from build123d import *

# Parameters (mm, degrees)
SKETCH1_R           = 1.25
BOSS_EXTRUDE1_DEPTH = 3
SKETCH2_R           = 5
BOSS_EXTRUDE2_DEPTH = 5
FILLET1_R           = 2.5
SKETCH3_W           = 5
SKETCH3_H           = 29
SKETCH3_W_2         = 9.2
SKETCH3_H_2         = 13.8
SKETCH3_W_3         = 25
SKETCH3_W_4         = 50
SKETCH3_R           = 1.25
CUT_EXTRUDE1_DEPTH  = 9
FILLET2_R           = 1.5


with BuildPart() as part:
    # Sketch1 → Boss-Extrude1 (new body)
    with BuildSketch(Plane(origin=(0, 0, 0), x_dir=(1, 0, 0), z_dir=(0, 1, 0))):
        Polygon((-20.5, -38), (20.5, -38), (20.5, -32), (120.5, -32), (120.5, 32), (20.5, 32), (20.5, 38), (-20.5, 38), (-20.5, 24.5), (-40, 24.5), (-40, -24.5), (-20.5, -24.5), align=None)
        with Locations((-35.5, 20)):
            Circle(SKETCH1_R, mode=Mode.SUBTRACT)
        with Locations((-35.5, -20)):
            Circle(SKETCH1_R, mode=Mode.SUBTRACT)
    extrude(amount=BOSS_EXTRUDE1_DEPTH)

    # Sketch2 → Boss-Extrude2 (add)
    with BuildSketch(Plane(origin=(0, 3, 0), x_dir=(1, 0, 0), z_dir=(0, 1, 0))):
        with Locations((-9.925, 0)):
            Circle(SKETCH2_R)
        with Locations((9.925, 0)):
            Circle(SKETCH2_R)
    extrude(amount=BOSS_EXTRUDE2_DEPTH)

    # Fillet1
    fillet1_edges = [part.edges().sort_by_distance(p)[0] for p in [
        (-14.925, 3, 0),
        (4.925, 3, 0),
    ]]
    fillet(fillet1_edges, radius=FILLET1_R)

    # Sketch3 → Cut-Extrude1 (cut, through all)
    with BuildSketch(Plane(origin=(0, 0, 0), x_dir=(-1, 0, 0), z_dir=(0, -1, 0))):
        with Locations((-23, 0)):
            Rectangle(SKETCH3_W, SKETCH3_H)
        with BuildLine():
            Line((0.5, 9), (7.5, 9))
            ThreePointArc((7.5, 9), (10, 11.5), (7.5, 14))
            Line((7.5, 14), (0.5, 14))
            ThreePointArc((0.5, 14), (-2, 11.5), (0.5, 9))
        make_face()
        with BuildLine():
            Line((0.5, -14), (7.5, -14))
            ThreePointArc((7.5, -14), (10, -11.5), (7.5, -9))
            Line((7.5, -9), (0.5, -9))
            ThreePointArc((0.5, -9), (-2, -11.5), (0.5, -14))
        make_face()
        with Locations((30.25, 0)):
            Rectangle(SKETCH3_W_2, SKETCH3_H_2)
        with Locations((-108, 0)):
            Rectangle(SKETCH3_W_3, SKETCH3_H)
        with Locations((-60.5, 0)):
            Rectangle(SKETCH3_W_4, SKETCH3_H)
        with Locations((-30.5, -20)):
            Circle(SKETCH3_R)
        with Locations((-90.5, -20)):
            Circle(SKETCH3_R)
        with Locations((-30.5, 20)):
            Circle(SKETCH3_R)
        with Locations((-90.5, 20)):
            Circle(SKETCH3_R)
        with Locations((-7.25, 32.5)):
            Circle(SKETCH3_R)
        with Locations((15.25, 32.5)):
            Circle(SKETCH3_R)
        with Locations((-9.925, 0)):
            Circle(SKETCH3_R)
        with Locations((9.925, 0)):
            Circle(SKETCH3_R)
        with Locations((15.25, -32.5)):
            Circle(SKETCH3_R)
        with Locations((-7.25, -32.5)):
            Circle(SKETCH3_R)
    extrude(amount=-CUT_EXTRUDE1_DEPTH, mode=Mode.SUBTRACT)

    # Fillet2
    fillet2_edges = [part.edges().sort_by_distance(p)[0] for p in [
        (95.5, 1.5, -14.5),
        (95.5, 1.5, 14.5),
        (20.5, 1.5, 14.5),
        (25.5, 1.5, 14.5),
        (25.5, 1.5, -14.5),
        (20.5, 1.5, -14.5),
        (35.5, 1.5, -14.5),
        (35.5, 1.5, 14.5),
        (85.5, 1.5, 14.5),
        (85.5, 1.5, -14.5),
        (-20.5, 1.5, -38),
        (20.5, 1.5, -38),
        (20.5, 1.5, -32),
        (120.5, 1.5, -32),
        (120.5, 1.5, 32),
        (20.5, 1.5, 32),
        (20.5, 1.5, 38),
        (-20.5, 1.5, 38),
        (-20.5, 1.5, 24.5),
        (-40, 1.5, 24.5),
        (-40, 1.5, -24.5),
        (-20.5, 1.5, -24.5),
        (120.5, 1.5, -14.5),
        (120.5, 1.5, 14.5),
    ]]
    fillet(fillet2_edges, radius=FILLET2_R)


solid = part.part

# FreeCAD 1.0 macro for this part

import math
import FreeCAD as App
import Part
import Sketcher
Q = App.Units.Quantity


def edges_at(feature, points):
    """Names of the edges that pass closest to the given points."""
    edges = feature.Shape.Edges
    near = lambda p: min(range(len(edges)), key=lambda i: edges[i].distToShape(Part.Vertex(*p))[0])
    return sorted({f"Edge{near(p) + 1}" for p in points})

doc = App.newDocument("Part")
body = doc.addObject("PartDesign::Body", "Body")

sketch1 = doc.addObject("Sketcher::SketchObject", "Sketch")
body.addObject(sketch1)
sketch1.AttachmentSupport = (doc.XZ_Plane, [""])
sketch1.MapMode = "FlatFace"
sketch1.addGeometry(Part.LineSegment(App.Vector(-20.5, 38, 0), App.Vector(20.5, 38, 0)), False)
sketch1.addGeometry(Part.LineSegment(App.Vector(20.5, 38, 0), App.Vector(20.5, 32, 0)), False)
sketch1.addGeometry(Part.LineSegment(App.Vector(20.5, 32, 0), App.Vector(120.5, 32, 0)), False)
sketch1.addGeometry(Part.LineSegment(App.Vector(120.5, 32, 0), App.Vector(120.5, -32, 0)), False)
sketch1.addGeometry(Part.LineSegment(App.Vector(120.5, -32, 0), App.Vector(20.5, -32, 0)), False)
sketch1.addGeometry(Part.LineSegment(App.Vector(20.5, -32, 0), App.Vector(20.5, -38, 0)), False)
sketch1.addGeometry(Part.LineSegment(App.Vector(20.5, -38, 0), App.Vector(-20.5, -38, 0)), False)
sketch1.addGeometry(Part.LineSegment(App.Vector(-20.5, -38, 0), App.Vector(-20.5, -24.5, 0)), False)
sketch1.addGeometry(Part.LineSegment(App.Vector(-20.5, -24.5, 0), App.Vector(-40, -24.5, 0)), False)
sketch1.addGeometry(Part.LineSegment(App.Vector(-40, -24.5, 0), App.Vector(-40, 24.5, 0)), False)
sketch1.addGeometry(Part.LineSegment(App.Vector(-40, 24.5, 0), App.Vector(-20.5, 24.5, 0)), False)
sketch1.addGeometry(Part.LineSegment(App.Vector(-20.5, 24.5, 0), App.Vector(-20.5, 38, 0)), False)
sketch1.addGeometry(Part.Circle(App.Vector(-35.5, 20, 0), App.Vector(0, 0, 1), 1.2), False)
sketch1.addGeometry(Part.Circle(App.Vector(-35.5, -20, 0), App.Vector(0, 0, 1), 1.2), False)
sketch1.addConstraint(Sketcher.Constraint("Coincident", 0, 2, 1, 1))
sketch1.addConstraint(Sketcher.Constraint("Coincident", 1, 2, 2, 1))
sketch1.addConstraint(Sketcher.Constraint("Coincident", 2, 2, 3, 1))
sketch1.addConstraint(Sketcher.Constraint("Coincident", 3, 2, 4, 1))
sketch1.addConstraint(Sketcher.Constraint("Coincident", 4, 2, 5, 1))
sketch1.addConstraint(Sketcher.Constraint("Coincident", 5, 2, 6, 1))
sketch1.addConstraint(Sketcher.Constraint("Coincident", 6, 2, 7, 1))
sketch1.addConstraint(Sketcher.Constraint("Coincident", 7, 2, 8, 1))
sketch1.addConstraint(Sketcher.Constraint("Coincident", 8, 2, 9, 1))
sketch1.addConstraint(Sketcher.Constraint("Coincident", 9, 2, 10, 1))
sketch1.addConstraint(Sketcher.Constraint("Coincident", 10, 2, 11, 1))
sketch1.addConstraint(Sketcher.Constraint("Coincident", 11, 2, 0, 1))
sketch1.addConstraint(Sketcher.Constraint("Horizontal", 0))
sketch1.addConstraint(Sketcher.Constraint("Vertical", 1))
sketch1.addConstraint(Sketcher.Constraint("Horizontal", 2))
sketch1.addConstraint(Sketcher.Constraint("Vertical", 3))
sketch1.addConstraint(Sketcher.Constraint("Horizontal", 4))
sketch1.addConstraint(Sketcher.Constraint("Vertical", 5))
sketch1.addConstraint(Sketcher.Constraint("Horizontal", 6))
sketch1.addConstraint(Sketcher.Constraint("Vertical", 7))
sketch1.addConstraint(Sketcher.Constraint("Horizontal", 8))
sketch1.addConstraint(Sketcher.Constraint("Vertical", 9))
sketch1.addConstraint(Sketcher.Constraint("Horizontal", 10))
sketch1.addConstraint(Sketcher.Constraint("Vertical", 11))
sketch1.addConstraint(Sketcher.Constraint("Equal", 12, 13))
sketch1.addConstraint(Sketcher.Constraint("Symmetric", 0, 2, 6, 2, -1, 1))
sketch1.addConstraint(Sketcher.Constraint("Symmetric", 12, 3, 13, 3, -1))
sketch1.addConstraint(Sketcher.Constraint("Symmetric", 1, 2, 4, 2, -1))
sketch1.addConstraint(Sketcher.Constraint("Symmetric", 7, 2, 10, 2, -1))
sketch1.addConstraint(Sketcher.Constraint("Diameter", 12, Q("2.5 mm")))
sketch1.addConstraint(Sketcher.Constraint("DistanceX", 0, 1, 0, 2, Q("41 mm")))
sketch1.addConstraint(Sketcher.Constraint("DistanceX", 2, 1, 2, 2, Q("100 mm")))
sketch1.addConstraint(Sketcher.Constraint("DistanceY", 1, 2, 1, 1, Q("6 mm")))
sketch1.addConstraint(Sketcher.Constraint("DistanceY", 3, 2, 3, 1, Q("64 mm")))
sketch1.addConstraint(Sketcher.Constraint("DistanceY", 9, 1, 9, 2, Q("49 mm")))
sketch1.addConstraint(Sketcher.Constraint("DistanceX", 8, 2, 8, 1, Q("19.5 mm")))
sketch1.addConstraint(Sketcher.Constraint("DistanceY", -1, 1, 12, 3, Q("20 mm")))
sketch1.addConstraint(Sketcher.Constraint("DistanceX", 12, 3, 0, 2, Q("56 mm")))
pad1 = doc.addObject("PartDesign::Pad", "Pad")
body.addObject(pad1)
pad1.Profile = sketch1
pad1.Length = 3
pad1.Reversed = True

sketch2 = doc.addObject("Sketcher::SketchObject", "Sketch001")
body.addObject(sketch2)
sketch2.AttachmentSupport = (doc.XZ_Plane, [""])
sketch2.MapMode = "FlatFace"
sketch2.AttachmentOffset = App.Placement(App.Vector(0, 0, -3), App.Rotation())
sketch2.addGeometry(Part.Circle(App.Vector(-10, 0, 0), App.Vector(0, 0, 1), 5), False)
sketch2.addGeometry(Part.Circle(App.Vector(10, 0, 0), App.Vector(0, 0, 1), 5), False)
sketch2.addConstraint(Sketcher.Constraint("Equal", 0, 1))
sketch2.addConstraint(Sketcher.Constraint("Symmetric", 0, 3, 1, 3, -1, 1))
sketch2.addConstraint(Sketcher.Constraint("PointOnObject", 0, 3, -1))
sketch2.addConstraint(Sketcher.Constraint("Diameter", 0, Q("10 mm")))
sketch2.addConstraint(Sketcher.Constraint("DistanceX", 0, 3, 1, 3, Q("19.85 mm")))
pad2 = doc.addObject("PartDesign::Pad", "Pad001")
body.addObject(pad2)
pad2.Profile = sketch2
pad2.Length = 5
pad2.Reversed = True
doc.recompute()

fillet = doc.addObject("PartDesign::Fillet", "Fillet")
body.addObject(fillet)
fillet.Base = (pad2, edges_at(pad2, [(-14.925, 3, 0), (4.925, 3, 0)]))
fillet.Radius = 2.5

sketch3 = doc.addObject("Sketcher::SketchObject", "Sketch002")
body.addObject(sketch3)
sketch3.AttachmentSupport = (doc.XZ_Plane, [""])
sketch3.MapMode = "FlatFace"
sketch3.addGeometry(Part.LineSegment(App.Vector(25.5, -14.5, 0), App.Vector(25.5, 14.5, 0)), False)
sketch3.addGeometry(Part.LineSegment(App.Vector(25.5, 14.5, 0), App.Vector(20.5, 14.5, 0)), False)
sketch3.addGeometry(Part.LineSegment(App.Vector(20.5, 14.5, 0), App.Vector(20.5, -14.5, 0)), False)
sketch3.addGeometry(Part.LineSegment(App.Vector(20.5, -14.5, 0), App.Vector(25.5, -14.5, 0)), False)
sketch3.addGeometry(Part.LineSegment(App.Vector(-0.5, -9, 0), App.Vector(-7.5, -9, 0)), False)
sketch3.addGeometry(Part.ArcOfCircle(Part.Circle(App.Vector(-7.5, -11.5, 0), App.Vector(0, 0, 1), 2.5), math.radians(90), math.radians(270)), False)
sketch3.addGeometry(Part.LineSegment(App.Vector(-7.5, -14, 0), App.Vector(-0.5, -14, 0)), False)
sketch3.addGeometry(Part.ArcOfCircle(Part.Circle(App.Vector(-0.5, -11.5, 0), App.Vector(0, 0, 1), 2.5), math.radians(-90), math.radians(90)), False)
sketch3.addGeometry(Part.LineSegment(App.Vector(-0.5, 14, 0), App.Vector(-7.5, 14, 0)), False)
sketch3.addGeometry(Part.ArcOfCircle(Part.Circle(App.Vector(-7.5, 11.5, 0), App.Vector(0, 0, 1), 2.5), math.radians(90), math.radians(270)), False)
sketch3.addGeometry(Part.LineSegment(App.Vector(-7.5, 9, 0), App.Vector(-0.5, 9, 0)), False)
sketch3.addGeometry(Part.ArcOfCircle(Part.Circle(App.Vector(-0.5, 11.5, 0), App.Vector(0, 0, 1), 2.5), math.radians(-90), math.radians(90)), False)
sketch3.addGeometry(Part.LineSegment(App.Vector(-25.6, -6.9, 0), App.Vector(-25.6, 6.9, 0)), False)
sketch3.addGeometry(Part.LineSegment(App.Vector(-25.6, 6.9, 0), App.Vector(-34.9, 6.9, 0)), False)
sketch3.addGeometry(Part.LineSegment(App.Vector(-34.9, 6.9, 0), App.Vector(-34.9, -6.9, 0)), False)
sketch3.addGeometry(Part.LineSegment(App.Vector(-34.9, -6.9, 0), App.Vector(-25.6, -6.9, 0)), False)
sketch3.addGeometry(Part.LineSegment(App.Vector(120.5, -14.5, 0), App.Vector(120.5, 14.5, 0)), False)
sketch3.addGeometry(Part.LineSegment(App.Vector(120.5, 14.5, 0), App.Vector(95.5, 14.5, 0)), False)
sketch3.addGeometry(Part.LineSegment(App.Vector(95.5, 14.5, 0), App.Vector(95.5, -14.5, 0)), False)
sketch3.addGeometry(Part.LineSegment(App.Vector(95.5, -14.5, 0), App.Vector(120.5, -14.5, 0)), False)
sketch3.addGeometry(Part.LineSegment(App.Vector(85.5, -14.5, 0), App.Vector(85.5, 14.5, 0)), False)
sketch3.addGeometry(Part.LineSegment(App.Vector(85.5, 14.5, 0), App.Vector(35.5, 14.5, 0)), False)
sketch3.addGeometry(Part.LineSegment(App.Vector(35.5, 14.5, 0), App.Vector(35.5, -14.5, 0)), False)
sketch3.addGeometry(Part.LineSegment(App.Vector(35.5, -14.5, 0), App.Vector(85.5, -14.5, 0)), False)
sketch3.addGeometry(Part.Circle(App.Vector(30.5, 20, 0), App.Vector(0, 0, 1), 1.2), False)
sketch3.addGeometry(Part.Circle(App.Vector(90.5, 20, 0), App.Vector(0, 0, 1), 1.2), False)
sketch3.addGeometry(Part.Circle(App.Vector(30.5, -20, 0), App.Vector(0, 0, 1), 1.2), False)
sketch3.addGeometry(Part.Circle(App.Vector(90.5, -20, 0), App.Vector(0, 0, 1), 1.2), False)
sketch3.addGeometry(Part.Circle(App.Vector(7.2, -32.5, 0), App.Vector(0, 0, 1), 1.2), False)
sketch3.addGeometry(Part.Circle(App.Vector(-15.2, -32.5, 0), App.Vector(0, 0, 1), 1.2), False)
sketch3.addGeometry(Part.Circle(App.Vector(9.9, 0, 0), App.Vector(0, 0, 1), 1.2), False)
sketch3.addGeometry(Part.Circle(App.Vector(-9.9, 0, 0), App.Vector(0, 0, 1), 1.2), False)
sketch3.addGeometry(Part.Circle(App.Vector(-15.2, 32.5, 0), App.Vector(0, 0, 1), 1.2), False)
sketch3.addGeometry(Part.Circle(App.Vector(7.2, 32.5, 0), App.Vector(0, 0, 1), 1.2), False)
sketch3.addConstraint(Sketcher.Constraint("Coincident", 0, 2, 1, 1))
sketch3.addConstraint(Sketcher.Constraint("Coincident", 1, 2, 2, 1))
sketch3.addConstraint(Sketcher.Constraint("Coincident", 2, 2, 3, 1))
sketch3.addConstraint(Sketcher.Constraint("Coincident", 3, 2, 0, 1))
sketch3.addConstraint(Sketcher.Constraint("Tangent", 4, 2, 5, 1))
sketch3.addConstraint(Sketcher.Constraint("Tangent", 5, 2, 6, 1))
sketch3.addConstraint(Sketcher.Constraint("Tangent", 6, 2, 7, 1))
sketch3.addConstraint(Sketcher.Constraint("Tangent", 7, 2, 4, 1))
sketch3.addConstraint(Sketcher.Constraint("Tangent", 8, 2, 9, 1))
sketch3.addConstraint(Sketcher.Constraint("Tangent", 9, 2, 10, 1))
sketch3.addConstraint(Sketcher.Constraint("Tangent", 10, 2, 11, 1))
sketch3.addConstraint(Sketcher.Constraint("Tangent", 11, 2, 8, 1))
sketch3.addConstraint(Sketcher.Constraint("Coincident", 12, 2, 13, 1))
sketch3.addConstraint(Sketcher.Constraint("Coincident", 13, 2, 14, 1))
sketch3.addConstraint(Sketcher.Constraint("Coincident", 14, 2, 15, 1))
sketch3.addConstraint(Sketcher.Constraint("Coincident", 15, 2, 12, 1))
sketch3.addConstraint(Sketcher.Constraint("Coincident", 16, 2, 17, 1))
sketch3.addConstraint(Sketcher.Constraint("Coincident", 17, 2, 18, 1))
sketch3.addConstraint(Sketcher.Constraint("Coincident", 18, 2, 19, 1))
sketch3.addConstraint(Sketcher.Constraint("Coincident", 19, 2, 16, 1))
sketch3.addConstraint(Sketcher.Constraint("Coincident", 20, 2, 21, 1))
sketch3.addConstraint(Sketcher.Constraint("Coincident", 21, 2, 22, 1))
sketch3.addConstraint(Sketcher.Constraint("Coincident", 22, 2, 23, 1))
sketch3.addConstraint(Sketcher.Constraint("Coincident", 23, 2, 20, 1))
sketch3.addConstraint(Sketcher.Constraint("Vertical", 0))
sketch3.addConstraint(Sketcher.Constraint("Horizontal", 1))
sketch3.addConstraint(Sketcher.Constraint("Vertical", 2))
sketch3.addConstraint(Sketcher.Constraint("Horizontal", 3))
sketch3.addConstraint(Sketcher.Constraint("Horizontal", 4))
sketch3.addConstraint(Sketcher.Constraint("Horizontal", 6))
sketch3.addConstraint(Sketcher.Constraint("Horizontal", 8))
sketch3.addConstraint(Sketcher.Constraint("Horizontal", 10))
sketch3.addConstraint(Sketcher.Constraint("Vertical", 12))
sketch3.addConstraint(Sketcher.Constraint("Horizontal", 13))
sketch3.addConstraint(Sketcher.Constraint("Vertical", 14))
sketch3.addConstraint(Sketcher.Constraint("Horizontal", 15))
sketch3.addConstraint(Sketcher.Constraint("Vertical", 16))
sketch3.addConstraint(Sketcher.Constraint("Horizontal", 17))
sketch3.addConstraint(Sketcher.Constraint("Vertical", 18))
sketch3.addConstraint(Sketcher.Constraint("Horizontal", 19))
sketch3.addConstraint(Sketcher.Constraint("Vertical", 20))
sketch3.addConstraint(Sketcher.Constraint("Horizontal", 21))
sketch3.addConstraint(Sketcher.Constraint("Vertical", 22))
sketch3.addConstraint(Sketcher.Constraint("Horizontal", 23))
sketch3.addConstraint(Sketcher.Constraint("Equal", 7, 9))
sketch3.addConstraint(Sketcher.Constraint("Equal", 24, 25))
sketch3.addConstraint(Sketcher.Constraint("Equal", 25, 26))
sketch3.addConstraint(Sketcher.Constraint("Equal", 26, 27))
sketch3.addConstraint(Sketcher.Constraint("Equal", 27, 28))
sketch3.addConstraint(Sketcher.Constraint("Equal", 28, 29))
sketch3.addConstraint(Sketcher.Constraint("Equal", 29, 30))
sketch3.addConstraint(Sketcher.Constraint("Equal", 30, 31))
sketch3.addConstraint(Sketcher.Constraint("Equal", 31, 32))
sketch3.addConstraint(Sketcher.Constraint("Equal", 32, 33))
sketch3.addConstraint(Sketcher.Constraint("Symmetric", 30, 3, 31, 3, -1, 1))
sketch3.addConstraint(Sketcher.Constraint("Symmetric", 5, 3, 9, 3, -1))
sketch3.addConstraint(Sketcher.Constraint("Symmetric", 24, 3, 26, 3, -1))
sketch3.addConstraint(Sketcher.Constraint("Symmetric", 25, 3, 27, 3, -1))
sketch3.addConstraint(Sketcher.Constraint("Symmetric", 29, 3, 32, 3, -1))
sketch3.addConstraint(Sketcher.Constraint("Symmetric", 28, 3, 33, 3, -1))
sketch3.addConstraint(Sketcher.Constraint("PointOnObject", 30, 3, -1))
sketch3.addConstraint(Sketcher.Constraint("Horizontal", 24, 3, 25, 3))
sketch3.addConstraint(Sketcher.Constraint("Horizontal", 28, 3, 29, 3))
sketch3.addConstraint(Sketcher.Constraint("Horizontal", 1, 2, 16, 2))
sketch3.addConstraint(Sketcher.Constraint("Horizontal", 3, 2, 18, 2))
sketch3.addConstraint(Sketcher.Constraint("Horizontal", 17, 2, 20, 2))
sketch3.addConstraint(Sketcher.Constraint("Horizontal", 19, 2, 22, 2))
sketch3.addConstraint(Sketcher.Constraint("Vertical", 7, 3, 11, 3))
sketch3.addConstraint(Sketcher.Constraint("Diameter", 24, Q("2.5 mm")))
sketch3.addConstraint(Sketcher.Constraint("Radius", 5, Q("2.5 mm")))
sketch3.addConstraint(Sketcher.Constraint("DistanceX", 1, 2, 1, 1, Q("5 mm")))
sketch3.addConstraint(Sketcher.Constraint("DistanceX", 4, 2, 4, 1, Q("7 mm")))
sketch3.addConstraint(Sketcher.Constraint("DistanceX", 17, 2, 17, 1, Q("25 mm")))
sketch3.addConstraint(Sketcher.Constraint("DistanceX", 21, 2, 21, 1, Q("50 mm")))
sketch3.addConstraint(Sketcher.Constraint("DistanceY", 0, 1, 0, 2, Q("29 mm")))
sketch3.addConstraint(Sketcher.Constraint("DistanceX", 13, 2, 13, 1, Q("9.2 mm")))
sketch3.addConstraint(Sketcher.Constraint("DistanceY", 12, 1, 12, 2, Q("13.8 mm")))
sketch3.addConstraint(Sketcher.Constraint("DistanceY", -1, 1, 24, 3, Q("20 mm")))
sketch3.addConstraint(Sketcher.Constraint("DistanceY", 4, 2, -1, 1, Q("9 mm")))
sketch3.addConstraint(Sketcher.Constraint("DistanceX", 11, 3, 24, 3, Q("31 mm")))
sketch3.addConstraint(Sketcher.Constraint("DistanceX", 24, 3, 25, 3, Q("60 mm")))
sketch3.addConstraint(Sketcher.Constraint("DistanceY", 28, 3, 7, 3, Q("21 mm")))
sketch3.addConstraint(Sketcher.Constraint("DistanceX", 0, 2, 24, 3, Q("5 mm")))
sketch3.addConstraint(Sketcher.Constraint("DistanceY", 0, 2, 33, 3, Q("18 mm")))
sketch3.addConstraint(Sketcher.Constraint("DistanceX", 25, 3, 16, 2, Q("30 mm")))
sketch3.addConstraint(Sketcher.Constraint("DistanceX", 20, 2, 25, 3, Q("5 mm")))
sketch3.addConstraint(Sketcher.Constraint("DistanceX", 5, 3, -1, 1, Q("7.5 mm")))
sketch3.addConstraint(Sketcher.Constraint("DistanceY", -1, 1, 12, 2, Q("6.9 mm")))
sketch3.addConstraint(Sketcher.Constraint("DistanceX", 29, 3, 28, 3, Q("22.5 mm")))
sketch3.addConstraint(Sketcher.Constraint("DistanceX", -1, 1, 28, 3, Q("7.25 mm")))
sketch3.addConstraint(Sketcher.Constraint("DistanceX", 12, 2, -1, 1, Q("25.65 mm")))
sketch3.addConstraint(Sketcher.Constraint("DistanceX", 31, 3, 30, 3, Q("19.85 mm")))
pocket1 = doc.addObject("PartDesign::Pocket", "Pocket")
body.addObject(pocket1)
pocket1.Profile = sketch3
pocket1.Type = "ThroughAll"
doc.recompute()

fillet2 = doc.addObject("PartDesign::Fillet", "Fillet001")
body.addObject(fillet2)
fillet2.Base = (pocket1, edges_at(pocket1, [
    (95.5, 1.5, -14.5),
    (95.5, 1.5, 14.5),
    (20.5, 1.5, 14.5),
    (25.5, 1.5, 14.5),
    (25.5, 1.5, -14.5),
    (20.5, 1.5, -14.5),
    (35.5, 1.5, -14.5),
    (35.5, 1.5, 14.5),
    (85.5, 1.5, 14.5),
    (85.5, 1.5, -14.5),
    (-20.5, 1.5, -38),
    (20.5, 1.5, -38),
    (20.5, 1.5, -32),
    (120.5, 1.5, -32),
    (120.5, 1.5, 32),
    (20.5, 1.5, 32),
    (20.5, 1.5, 38),
    (-20.5, 1.5, 38),
    (-20.5, 1.5, 24.5),
    (-40, 1.5, 24.5),
    (-40, 1.5, -24.5),
    (-20.5, 1.5, -24.5),
    (120.5, 1.5, -14.5),
    (120.5, 1.5, 14.5),
]))
fillet2.Radius = 1.5

doc.recompute()
